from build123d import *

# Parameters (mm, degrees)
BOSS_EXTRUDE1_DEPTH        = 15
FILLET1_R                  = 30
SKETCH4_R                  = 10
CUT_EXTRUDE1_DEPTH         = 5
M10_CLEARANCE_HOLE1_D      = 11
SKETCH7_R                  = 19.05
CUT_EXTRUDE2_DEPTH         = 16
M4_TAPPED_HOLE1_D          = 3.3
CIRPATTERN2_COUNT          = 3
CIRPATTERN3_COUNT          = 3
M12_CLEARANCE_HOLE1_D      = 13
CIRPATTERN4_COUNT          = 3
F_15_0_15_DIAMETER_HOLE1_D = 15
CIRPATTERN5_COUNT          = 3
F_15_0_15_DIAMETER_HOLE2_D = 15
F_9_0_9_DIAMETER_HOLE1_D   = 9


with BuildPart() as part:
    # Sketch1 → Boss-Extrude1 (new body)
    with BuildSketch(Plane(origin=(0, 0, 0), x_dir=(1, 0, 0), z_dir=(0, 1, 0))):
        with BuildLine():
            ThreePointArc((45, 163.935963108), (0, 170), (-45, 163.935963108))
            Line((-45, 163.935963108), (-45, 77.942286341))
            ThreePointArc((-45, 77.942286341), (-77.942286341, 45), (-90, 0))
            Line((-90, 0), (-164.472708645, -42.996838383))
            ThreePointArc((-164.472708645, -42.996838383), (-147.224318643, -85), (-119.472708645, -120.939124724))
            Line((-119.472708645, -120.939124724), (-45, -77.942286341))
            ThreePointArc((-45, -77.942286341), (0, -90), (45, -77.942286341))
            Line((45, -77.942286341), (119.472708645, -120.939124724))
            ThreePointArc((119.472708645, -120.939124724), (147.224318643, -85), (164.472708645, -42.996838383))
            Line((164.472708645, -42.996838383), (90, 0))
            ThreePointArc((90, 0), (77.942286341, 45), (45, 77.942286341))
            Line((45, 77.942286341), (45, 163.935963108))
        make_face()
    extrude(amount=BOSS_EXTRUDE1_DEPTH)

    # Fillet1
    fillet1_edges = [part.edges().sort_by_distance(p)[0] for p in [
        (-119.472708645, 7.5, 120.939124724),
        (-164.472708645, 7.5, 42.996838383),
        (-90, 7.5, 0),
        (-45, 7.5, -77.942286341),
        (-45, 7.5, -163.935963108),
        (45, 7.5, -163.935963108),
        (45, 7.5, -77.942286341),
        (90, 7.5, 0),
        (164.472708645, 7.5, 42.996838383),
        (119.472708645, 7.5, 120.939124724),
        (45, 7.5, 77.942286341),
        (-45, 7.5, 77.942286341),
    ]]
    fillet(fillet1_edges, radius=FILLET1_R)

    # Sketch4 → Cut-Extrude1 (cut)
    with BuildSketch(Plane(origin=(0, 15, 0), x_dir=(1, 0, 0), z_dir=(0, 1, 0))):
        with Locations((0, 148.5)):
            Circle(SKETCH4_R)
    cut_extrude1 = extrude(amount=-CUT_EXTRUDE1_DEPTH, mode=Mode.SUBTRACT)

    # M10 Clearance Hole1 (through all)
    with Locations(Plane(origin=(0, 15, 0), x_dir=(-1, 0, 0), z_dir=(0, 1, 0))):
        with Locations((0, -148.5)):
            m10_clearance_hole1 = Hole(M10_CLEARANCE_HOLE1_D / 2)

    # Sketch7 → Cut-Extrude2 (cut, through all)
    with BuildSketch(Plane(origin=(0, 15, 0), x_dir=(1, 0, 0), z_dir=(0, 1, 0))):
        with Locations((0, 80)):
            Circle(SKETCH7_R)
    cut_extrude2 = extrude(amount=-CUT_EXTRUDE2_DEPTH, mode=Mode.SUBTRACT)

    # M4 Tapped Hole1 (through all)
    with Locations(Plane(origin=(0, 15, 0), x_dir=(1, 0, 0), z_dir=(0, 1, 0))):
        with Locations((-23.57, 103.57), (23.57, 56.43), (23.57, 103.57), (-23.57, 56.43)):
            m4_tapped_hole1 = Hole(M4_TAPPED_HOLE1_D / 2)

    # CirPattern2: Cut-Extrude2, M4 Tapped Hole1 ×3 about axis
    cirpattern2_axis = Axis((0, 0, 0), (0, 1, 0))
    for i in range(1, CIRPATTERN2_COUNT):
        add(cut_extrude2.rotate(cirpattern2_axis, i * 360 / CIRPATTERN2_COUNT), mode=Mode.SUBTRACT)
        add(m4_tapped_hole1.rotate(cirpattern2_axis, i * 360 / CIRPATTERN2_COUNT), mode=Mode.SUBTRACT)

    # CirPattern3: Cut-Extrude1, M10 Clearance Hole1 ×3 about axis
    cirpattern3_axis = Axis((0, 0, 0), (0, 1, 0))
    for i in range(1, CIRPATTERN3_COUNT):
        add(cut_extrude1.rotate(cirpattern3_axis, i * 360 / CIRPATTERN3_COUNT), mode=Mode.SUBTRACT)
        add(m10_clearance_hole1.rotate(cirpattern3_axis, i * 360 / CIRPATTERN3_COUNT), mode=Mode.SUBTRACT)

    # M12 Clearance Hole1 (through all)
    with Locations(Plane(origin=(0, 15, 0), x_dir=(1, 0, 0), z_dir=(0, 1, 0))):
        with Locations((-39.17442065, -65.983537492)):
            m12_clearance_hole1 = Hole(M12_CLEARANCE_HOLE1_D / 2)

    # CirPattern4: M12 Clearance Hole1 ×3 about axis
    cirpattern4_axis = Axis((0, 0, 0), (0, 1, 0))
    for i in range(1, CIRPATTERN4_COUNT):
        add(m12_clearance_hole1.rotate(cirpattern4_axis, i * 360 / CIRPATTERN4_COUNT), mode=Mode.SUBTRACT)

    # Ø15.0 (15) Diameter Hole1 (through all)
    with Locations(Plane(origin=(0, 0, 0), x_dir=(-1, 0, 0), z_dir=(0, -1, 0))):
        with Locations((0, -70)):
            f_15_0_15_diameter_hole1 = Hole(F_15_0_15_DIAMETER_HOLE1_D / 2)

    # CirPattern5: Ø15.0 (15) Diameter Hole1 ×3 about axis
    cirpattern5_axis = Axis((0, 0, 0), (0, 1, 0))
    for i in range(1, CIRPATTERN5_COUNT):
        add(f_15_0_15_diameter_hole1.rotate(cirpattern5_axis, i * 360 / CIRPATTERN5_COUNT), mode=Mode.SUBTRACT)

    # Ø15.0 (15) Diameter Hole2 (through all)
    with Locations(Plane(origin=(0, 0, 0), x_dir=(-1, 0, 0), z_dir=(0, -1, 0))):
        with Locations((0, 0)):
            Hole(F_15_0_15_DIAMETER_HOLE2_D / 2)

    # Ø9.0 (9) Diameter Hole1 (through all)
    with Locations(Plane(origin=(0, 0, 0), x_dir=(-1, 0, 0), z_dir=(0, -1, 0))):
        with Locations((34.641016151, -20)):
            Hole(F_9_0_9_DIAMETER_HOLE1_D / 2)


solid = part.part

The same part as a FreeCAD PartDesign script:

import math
import FreeCAD as App
import Part
import Sketcher

V = App.Vector
Q = App.Units.Quantity


def edges_at(feature, points):
    """Names of the edges that pass closest to the given points."""
    edges = feature.Shape.Edges
    near = lambda p: min(range(len(edges)), key=lambda i: edges[i].distToShape(Part.Vertex(*p))[0])
    return sorted({f"Edge{near(p) + 1}" for p in points})

doc = App.newDocument("Part")
body = doc.addObject("PartDesign::Body", "Body")

# Sketch on XZ plane
sketch1 = doc.addObject("Sketcher::SketchObject", "Sketch")
body.addObject(sketch1)
sketch1.AttachmentSupport = (doc.XZ_Plane, [""])
sketch1.MapMode = "FlatFace"
sketch1.addGeometry([
    Part.ArcOfCircle(Part.Circle(V(0, 0, 0), V(0, 0, 1), 170), math.radians(-105), math.radians(-75)),  # 0
    Part.LineSegment(V(-45, -164, 0), V(-45, -78, 0)),  # 1
    Part.ArcOfCircle(Part.Circle(V(0, 0, 0), V(0, 0, 1), 90), math.radians(180), math.radians(240)),  # 2
    Part.LineSegment(V(-90, 0, 0), V(-164, 43, 0)),  # 3
    Part.ArcOfCircle(Part.Circle(V(0, 0, 0), V(0, 0, 1), 170), math.radians(135), math.radians(165)),  # 4
    Part.LineSegment(V(-119, 121, 0), V(-45, 78, 0)),  # 5
    Part.ArcOfCircle(Part.Circle(V(0, 0, 0), V(0, 0, 1), 90), math.radians(60), math.radians(120)),  # 6
    Part.LineSegment(V(45, 78, 0), V(119, 121, 0)),  # 7
    Part.ArcOfCircle(Part.Circle(V(0, 0, 0), V(0, 0, 1), 170), math.radians(15), math.radians(45)),  # 8
    Part.LineSegment(V(164, 43, 0), V(90, 0, 0)),  # 9
    Part.ArcOfCircle(Part.Circle(V(0, 0, 0), V(0, 0, 1), 90), math.radians(-60), math.radians(0)),  # 10
    Part.LineSegment(V(45, -78, 0), V(45, -164, 0)),  # 11
], False)
sketch1.addConstraint([
    Sketcher.Constraint("Coincident", 0, 1, 1, 1),
    Sketcher.Constraint("Coincident", 1, 2, 2, 2),
    Sketcher.Constraint("Coincident", 2, 1, 3, 1),
    Sketcher.Constraint("Coincident", 3, 2, 4, 2),
    Sketcher.Constraint("Coincident", 4, 1, 5, 1),
    Sketcher.Constraint("Coincident", 5, 2, 6, 2),
    Sketcher.Constraint("Coincident", 6, 1, 7, 1),
    Sketcher.Constraint("Coincident", 7, 2, 8, 2),
    Sketcher.Constraint("Coincident", 8, 1, 9, 1),
    Sketcher.Constraint("Coincident", 9, 2, 10, 2),
    Sketcher.Constraint("Coincident", 10, 1, 11, 1),
    Sketcher.Constraint("Coincident", 11, 2, 0, 2),
    Sketcher.Constraint("Vertical", 1),
    Sketcher.Constraint("Vertical", 11),
    Sketcher.Constraint("Coincident", 0, 3, -1, 1),
    Sketcher.Constraint("Coincident", 2, 3, -1, 1),
    Sketcher.Constraint("Coincident", 4, 3, -1, 1),
    Sketcher.Constraint("Coincident", 6, 3, -1, 1),
    Sketcher.Constraint("Coincident", 8, 3, -1, 1),
    Sketcher.Constraint("Coincident", 10, 3, -1, 1),
    Sketcher.Constraint("Equal", 0, 4),
    Sketcher.Constraint("Equal", 2, 6),
    Sketcher.Constraint("Equal", 4, 8),
    Sketcher.Constraint("Equal", 6, 10),
    Sketcher.Constraint("PointOnObject", 2, 1, -1),
    Sketcher.Constraint("PointOnObject", 9, 2, -1),
    Sketcher.Constraint("Parallel", 3, 5),
    Sketcher.Constraint("Parallel", 7, 9),
    Sketcher.Constraint("Horizontal", 5, 2, 6, 1),
    Sketcher.Constraint("Horizontal", 4, 1, 7, 2),
    Sketcher.Constraint("Horizontal", 1, 2, 10, 1),
    Sketcher.Constraint("Vertical", 1, 2, 5, 2),
    Sketcher.Constraint("Equal", 3, 5),
    Sketcher.Constraint("Radius", 0, 170.0),
    Sketcher.Constraint("Radius", 2, 90.0),
    Sketcher.Constraint("Angle", 3, Q("150 deg")),
])
pad1 = doc.addObject("PartDesign::Pad", "Pad")
body.addObject(pad1)
pad1.Profile = sketch1
pad1.Length = 15
pad1.Reversed = True
doc.recompute()

fillet = doc.addObject("PartDesign::Fillet", "Fillet")
body.addObject(fillet)
fillet.Base = (pad1, edges_at(pad1, [
    (-119.473, 7.5, 120.939),
    (-164.473, 7.5, 42.997),
    (-90, 7.5, 0),
    (-45, 7.5, -77.942),
    (-45, 7.5, -163.936),
    (45, 7.5, -163.936),
    (45, 7.5, -77.942),
    (90, 7.5, 0),
    (164.473, 7.5, 42.997),
    (119.473, 7.5, 120.939),
    (45, 7.5, 77.942),
    (-45, 7.5, 77.942),
]))
fillet.Radius = 30

# Sketch on XZ plane
sketch2 = doc.addObject("Sketcher::SketchObject", "Sketch001")
body.addObject(sketch2)
sketch2.AttachmentSupport = (doc.XZ_Plane, [""])
sketch2.MapMode = "FlatFace"
sketch2.AttachmentOffset = App.Placement(V(0, 0, -15), App.Rotation())
sketch2.addGeometry(Part.Circle(V(0, -148, 0), V(0, 0, 1), 10), False)
sketch2.addConstraint([
    Sketcher.Constraint("PointOnObject", 0, 3, -2),
    Sketcher.Constraint("Diameter", 0, 20.0),
    Sketcher.Constraint("DistanceY", 0, 3, -1, 1, 148.5),
])
pocket1 = doc.addObject("PartDesign::Pocket", "Pocket")
body.addObject(pocket1)
pocket1.Profile = sketch2
pocket1.Length = 5
pocket1.Reversed = True

# Sketch on XZ plane
sketch3 = doc.addObject("Sketcher::SketchObject", "Sketch002")
body.addObject(sketch3)
sketch3.AttachmentSupport = (doc.XZ_Plane, [""])
sketch3.MapMode = "FlatFace"
sketch3.AttachmentOffset = App.Placement(V(0, 0, -15), App.Rotation())
sketch3.addGeometry(Part.Circle(V(0, -148, 0), V(0, 0, 1), 6), False)
sketch3.addConstraint([
    Sketcher.Constraint("PointOnObject", 0, 3, -2),
    Sketcher.Constraint("Diameter", 0, 11.0),
    Sketcher.Constraint("DistanceY", 0, 3, -1, 1, 148.5),
])
doc.recompute()
hole = doc.addObject("PartDesign::Hole", "Hole")
body.addObject(hole)
hole.Profile = sketch3
hole.ThreadType = "None"
hole.Diameter = 11
hole.DepthType = "ThroughAll"
hole.Reversed = True

# Sketch on XZ plane
sketch4 = doc.addObject("Sketcher::SketchObject", "Sketch003")
body.addObject(sketch4)
sketch4.AttachmentSupport = (doc.XZ_Plane, [""])
sketch4.MapMode = "FlatFace"
sketch4.AttachmentOffset = App.Placement(V(0, 0, -15), App.Rotation())
sketch4.addGeometry(Part.Circle(V(0, -80, 0), V(0, 0, 1), 19), False)
sketch4.addConstraint([
    Sketcher.Constraint("PointOnObject", 0, 3, -2),
    Sketcher.Constraint("Diameter", 0, 38.1),
    Sketcher.Constraint("DistanceY", 0, 3, -1, 1, 80.0),
])
pocket2 = doc.addObject("PartDesign::Pocket", "Pocket001")
body.addObject(pocket2)
pocket2.Profile = sketch4
pocket2.Type = "ThroughAll"
pocket2.Reversed = True

# Sketch on XZ plane
sketch5 = doc.addObject("Sketcher::SketchObject", "Sketch004")
body.addObject(sketch5)
sketch5.AttachmentSupport = (doc.XZ_Plane, [""])
sketch5.MapMode = "FlatFace"
sketch5.AttachmentOffset = App.Placement(V(0, 0, -15), App.Rotation())
sketch5.addGeometry([
    Part.Circle(V(-23.6, -103.6, 0), V(0, 0, 1), 1.6),
    Part.Circle(V(23.6, -56.4, 0), V(0, 0, 1), 1.6),
    Part.Circle(V(23.6, -103.6, 0), V(0, 0, 1), 1.6),
    Part.Circle(V(-23.6, -56.4, 0), V(0, 0, 1), 1.6),
], False)
sketch5.addConstraint([
    Sketcher.Constraint("Equal", 0, 1),
    Sketcher.Constraint("Equal", 1, 2),
    Sketcher.Constraint("Equal", 2, 3),
    Sketcher.Constraint("Symmetric", 0, 3, 2, 3, -2),
    Sketcher.Constraint("Symmetric", 1, 3, 3, 3, -2),
    Sketcher.Constraint("Vertical", 1, 3, 2, 3),
    Sketcher.Constraint("Diameter", 0, 3.3),
    Sketcher.Constraint("DistanceX", 0, 3, -1, 1, 23.57),
    Sketcher.Constraint("DistanceY", 0, 3, -1, 1, 103.57),
    Sketcher.Constraint("DistanceY", 1, 3, -1, 1, 56.43),
])
doc.recompute()
hole2 = doc.addObject("PartDesign::Hole", "Hole001")
body.addObject(hole2)
hole2.Profile = sketch5
hole2.ThreadType = "None"
hole2.Diameter = 3.3
hole2.DepthType = "ThroughAll"
hole2.Reversed = True
doc.recompute()

polarpattern = doc.addObject("PartDesign::PolarPattern", "PolarPattern")
body.addObject(polarpattern)
polarpattern.Originals = [pocket2, hole2]
polarpattern.Axis = (doc.Y_Axis, [""])
polarpattern.Angle = 360
polarpattern.Occurrences = 3
body.Tip = polarpattern
doc.recompute()

polarpattern2 = doc.addObject("PartDesign::PolarPattern", "PolarPattern001")
body.addObject(polarpattern2)
polarpattern2.Originals = [pocket1, hole]
polarpattern2.Axis = (doc.Y_Axis, [""])
polarpattern2.Angle = 360
polarpattern2.Occurrences = 3
body.Tip = polarpattern2

# Sketch on XZ plane
sketch6 = doc.addObject("Sketcher::SketchObject", "Sketch005")
body.addObject(sketch6)
sketch6.AttachmentSupport = (doc.XZ_Plane, [""])
sketch6.MapMode = "FlatFace"
sketch6.AttachmentOffset = App.Placement(V(0, 0, -15), App.Rotation())
sketch6.addGeometry(Part.Circle(V(-39, 66, 0), V(0, 0, 1), 6), False)
sketch6.addConstraint([
    Sketcher.Constraint("Diameter", 0, 13.0),
    Sketcher.Constraint("DistanceX", 0, 3, -1, 1, 39.174421),
    Sketcher.Constraint("DistanceY", -1, 1, 0, 3, 65.983537),
])
doc.recompute()
hole3 = doc.addObject("PartDesign::Hole", "Hole002")
body.addObject(hole3)
hole3.Profile = sketch6
hole3.ThreadType = "None"
hole3.Diameter = 13
hole3.DepthType = "ThroughAll"
hole3.Reversed = True
doc.recompute()

polarpattern3 = doc.addObject("PartDesign::PolarPattern", "PolarPattern002")
body.addObject(polarpattern3)
polarpattern3.Originals = [hole3]
polarpattern3.Axis = (doc.Y_Axis, [""])
polarpattern3.Angle = 360
polarpattern3.Occurrences = 3
body.Tip = polarpattern3

# Sketch on XZ plane
sketch7 = doc.addObject("Sketcher::SketchObject", "Sketch006")
body.addObject(sketch7)
sketch7.AttachmentSupport = (doc.XZ_Plane, [""])
sketch7.MapMode = "FlatFace"
sketch7.addGeometry(Part.Circle(V(0, 70, 0), V(0, 0, 1), 8), False)
sketch7.addConstraint([
    Sketcher.Constraint("PointOnObject", 0, 3, -2),
    Sketcher.Constraint("Diameter", 0, 15.0),
    Sketcher.Constraint("DistanceY", -1, 1, 0, 3, 70.0),
])
doc.recompute()
hole4 = doc.addObject("PartDesign::Hole", "Hole003")
body.addObject(hole4)
hole4.Profile = sketch7
hole4.ThreadType = "None"
hole4.Diameter = 15
hole4.DepthType = "ThroughAll"
doc.recompute()

polarpattern4 = doc.addObject("PartDesign::PolarPattern", "PolarPattern003")
body.addObject(polarpattern4)
polarpattern4.Originals = [hole4]
polarpattern4.Axis = (doc.Y_Axis, [""])
polarpattern4.Angle = 360
polarpattern4.Occurrences = 3
body.Tip = polarpattern4

# Sketch on XZ plane
sketch8 = doc.addObject("Sketcher::SketchObject", "Sketch007")
body.addObject(sketch8)
sketch8.AttachmentSupport = (doc.XZ_Plane, [""])
sketch8.MapMode = "FlatFace"
sketch8.addGeometry(Part.Circle(V(0, 0, 0), V(0, 0, 1), 8), False)
sketch8.addConstraint([
    Sketcher.Constraint("Coincident", 0, 3, -1, 1),
    Sketcher.Constraint("Diameter", 0, 15.0),
])
doc.recompute()
hole5 = doc.addObject("PartDesign::Hole", "Hole004")
body.addObject(hole5)
hole5.Profile = sketch8
hole5.ThreadType = "None"
hole5.Diameter = 15
hole5.DepthType = "ThroughAll"

# Sketch on XZ plane
sketch9 = doc.addObject("Sketcher::SketchObject", "Sketch008")
body.addObject(sketch9)
sketch9.AttachmentSupport = (doc.XZ_Plane, [""])
sketch9.MapMode = "FlatFace"
sketch9.addGeometry(Part.Circle(V(-34.6, 20, 0), V(0, 0, 1), 4.5), False)
sketch9.addConstraint([
    Sketcher.Constraint("Diameter", 0, 9.0),
    Sketcher.Constraint("DistanceY", -1, 1, 0, 3, 20.0),
    Sketcher.Constraint("DistanceX", 0, 3, -1, 1, 34.641016),
])
doc.recompute()
hole6 = doc.addObject("PartDesign::Hole", "Hole005")
body.addObject(hole6)
hole6.Profile = sketch9
hole6.ThreadType = "None"
hole6.Diameter = 9
hole6.DepthType = "ThroughAll"

doc.recompute()
